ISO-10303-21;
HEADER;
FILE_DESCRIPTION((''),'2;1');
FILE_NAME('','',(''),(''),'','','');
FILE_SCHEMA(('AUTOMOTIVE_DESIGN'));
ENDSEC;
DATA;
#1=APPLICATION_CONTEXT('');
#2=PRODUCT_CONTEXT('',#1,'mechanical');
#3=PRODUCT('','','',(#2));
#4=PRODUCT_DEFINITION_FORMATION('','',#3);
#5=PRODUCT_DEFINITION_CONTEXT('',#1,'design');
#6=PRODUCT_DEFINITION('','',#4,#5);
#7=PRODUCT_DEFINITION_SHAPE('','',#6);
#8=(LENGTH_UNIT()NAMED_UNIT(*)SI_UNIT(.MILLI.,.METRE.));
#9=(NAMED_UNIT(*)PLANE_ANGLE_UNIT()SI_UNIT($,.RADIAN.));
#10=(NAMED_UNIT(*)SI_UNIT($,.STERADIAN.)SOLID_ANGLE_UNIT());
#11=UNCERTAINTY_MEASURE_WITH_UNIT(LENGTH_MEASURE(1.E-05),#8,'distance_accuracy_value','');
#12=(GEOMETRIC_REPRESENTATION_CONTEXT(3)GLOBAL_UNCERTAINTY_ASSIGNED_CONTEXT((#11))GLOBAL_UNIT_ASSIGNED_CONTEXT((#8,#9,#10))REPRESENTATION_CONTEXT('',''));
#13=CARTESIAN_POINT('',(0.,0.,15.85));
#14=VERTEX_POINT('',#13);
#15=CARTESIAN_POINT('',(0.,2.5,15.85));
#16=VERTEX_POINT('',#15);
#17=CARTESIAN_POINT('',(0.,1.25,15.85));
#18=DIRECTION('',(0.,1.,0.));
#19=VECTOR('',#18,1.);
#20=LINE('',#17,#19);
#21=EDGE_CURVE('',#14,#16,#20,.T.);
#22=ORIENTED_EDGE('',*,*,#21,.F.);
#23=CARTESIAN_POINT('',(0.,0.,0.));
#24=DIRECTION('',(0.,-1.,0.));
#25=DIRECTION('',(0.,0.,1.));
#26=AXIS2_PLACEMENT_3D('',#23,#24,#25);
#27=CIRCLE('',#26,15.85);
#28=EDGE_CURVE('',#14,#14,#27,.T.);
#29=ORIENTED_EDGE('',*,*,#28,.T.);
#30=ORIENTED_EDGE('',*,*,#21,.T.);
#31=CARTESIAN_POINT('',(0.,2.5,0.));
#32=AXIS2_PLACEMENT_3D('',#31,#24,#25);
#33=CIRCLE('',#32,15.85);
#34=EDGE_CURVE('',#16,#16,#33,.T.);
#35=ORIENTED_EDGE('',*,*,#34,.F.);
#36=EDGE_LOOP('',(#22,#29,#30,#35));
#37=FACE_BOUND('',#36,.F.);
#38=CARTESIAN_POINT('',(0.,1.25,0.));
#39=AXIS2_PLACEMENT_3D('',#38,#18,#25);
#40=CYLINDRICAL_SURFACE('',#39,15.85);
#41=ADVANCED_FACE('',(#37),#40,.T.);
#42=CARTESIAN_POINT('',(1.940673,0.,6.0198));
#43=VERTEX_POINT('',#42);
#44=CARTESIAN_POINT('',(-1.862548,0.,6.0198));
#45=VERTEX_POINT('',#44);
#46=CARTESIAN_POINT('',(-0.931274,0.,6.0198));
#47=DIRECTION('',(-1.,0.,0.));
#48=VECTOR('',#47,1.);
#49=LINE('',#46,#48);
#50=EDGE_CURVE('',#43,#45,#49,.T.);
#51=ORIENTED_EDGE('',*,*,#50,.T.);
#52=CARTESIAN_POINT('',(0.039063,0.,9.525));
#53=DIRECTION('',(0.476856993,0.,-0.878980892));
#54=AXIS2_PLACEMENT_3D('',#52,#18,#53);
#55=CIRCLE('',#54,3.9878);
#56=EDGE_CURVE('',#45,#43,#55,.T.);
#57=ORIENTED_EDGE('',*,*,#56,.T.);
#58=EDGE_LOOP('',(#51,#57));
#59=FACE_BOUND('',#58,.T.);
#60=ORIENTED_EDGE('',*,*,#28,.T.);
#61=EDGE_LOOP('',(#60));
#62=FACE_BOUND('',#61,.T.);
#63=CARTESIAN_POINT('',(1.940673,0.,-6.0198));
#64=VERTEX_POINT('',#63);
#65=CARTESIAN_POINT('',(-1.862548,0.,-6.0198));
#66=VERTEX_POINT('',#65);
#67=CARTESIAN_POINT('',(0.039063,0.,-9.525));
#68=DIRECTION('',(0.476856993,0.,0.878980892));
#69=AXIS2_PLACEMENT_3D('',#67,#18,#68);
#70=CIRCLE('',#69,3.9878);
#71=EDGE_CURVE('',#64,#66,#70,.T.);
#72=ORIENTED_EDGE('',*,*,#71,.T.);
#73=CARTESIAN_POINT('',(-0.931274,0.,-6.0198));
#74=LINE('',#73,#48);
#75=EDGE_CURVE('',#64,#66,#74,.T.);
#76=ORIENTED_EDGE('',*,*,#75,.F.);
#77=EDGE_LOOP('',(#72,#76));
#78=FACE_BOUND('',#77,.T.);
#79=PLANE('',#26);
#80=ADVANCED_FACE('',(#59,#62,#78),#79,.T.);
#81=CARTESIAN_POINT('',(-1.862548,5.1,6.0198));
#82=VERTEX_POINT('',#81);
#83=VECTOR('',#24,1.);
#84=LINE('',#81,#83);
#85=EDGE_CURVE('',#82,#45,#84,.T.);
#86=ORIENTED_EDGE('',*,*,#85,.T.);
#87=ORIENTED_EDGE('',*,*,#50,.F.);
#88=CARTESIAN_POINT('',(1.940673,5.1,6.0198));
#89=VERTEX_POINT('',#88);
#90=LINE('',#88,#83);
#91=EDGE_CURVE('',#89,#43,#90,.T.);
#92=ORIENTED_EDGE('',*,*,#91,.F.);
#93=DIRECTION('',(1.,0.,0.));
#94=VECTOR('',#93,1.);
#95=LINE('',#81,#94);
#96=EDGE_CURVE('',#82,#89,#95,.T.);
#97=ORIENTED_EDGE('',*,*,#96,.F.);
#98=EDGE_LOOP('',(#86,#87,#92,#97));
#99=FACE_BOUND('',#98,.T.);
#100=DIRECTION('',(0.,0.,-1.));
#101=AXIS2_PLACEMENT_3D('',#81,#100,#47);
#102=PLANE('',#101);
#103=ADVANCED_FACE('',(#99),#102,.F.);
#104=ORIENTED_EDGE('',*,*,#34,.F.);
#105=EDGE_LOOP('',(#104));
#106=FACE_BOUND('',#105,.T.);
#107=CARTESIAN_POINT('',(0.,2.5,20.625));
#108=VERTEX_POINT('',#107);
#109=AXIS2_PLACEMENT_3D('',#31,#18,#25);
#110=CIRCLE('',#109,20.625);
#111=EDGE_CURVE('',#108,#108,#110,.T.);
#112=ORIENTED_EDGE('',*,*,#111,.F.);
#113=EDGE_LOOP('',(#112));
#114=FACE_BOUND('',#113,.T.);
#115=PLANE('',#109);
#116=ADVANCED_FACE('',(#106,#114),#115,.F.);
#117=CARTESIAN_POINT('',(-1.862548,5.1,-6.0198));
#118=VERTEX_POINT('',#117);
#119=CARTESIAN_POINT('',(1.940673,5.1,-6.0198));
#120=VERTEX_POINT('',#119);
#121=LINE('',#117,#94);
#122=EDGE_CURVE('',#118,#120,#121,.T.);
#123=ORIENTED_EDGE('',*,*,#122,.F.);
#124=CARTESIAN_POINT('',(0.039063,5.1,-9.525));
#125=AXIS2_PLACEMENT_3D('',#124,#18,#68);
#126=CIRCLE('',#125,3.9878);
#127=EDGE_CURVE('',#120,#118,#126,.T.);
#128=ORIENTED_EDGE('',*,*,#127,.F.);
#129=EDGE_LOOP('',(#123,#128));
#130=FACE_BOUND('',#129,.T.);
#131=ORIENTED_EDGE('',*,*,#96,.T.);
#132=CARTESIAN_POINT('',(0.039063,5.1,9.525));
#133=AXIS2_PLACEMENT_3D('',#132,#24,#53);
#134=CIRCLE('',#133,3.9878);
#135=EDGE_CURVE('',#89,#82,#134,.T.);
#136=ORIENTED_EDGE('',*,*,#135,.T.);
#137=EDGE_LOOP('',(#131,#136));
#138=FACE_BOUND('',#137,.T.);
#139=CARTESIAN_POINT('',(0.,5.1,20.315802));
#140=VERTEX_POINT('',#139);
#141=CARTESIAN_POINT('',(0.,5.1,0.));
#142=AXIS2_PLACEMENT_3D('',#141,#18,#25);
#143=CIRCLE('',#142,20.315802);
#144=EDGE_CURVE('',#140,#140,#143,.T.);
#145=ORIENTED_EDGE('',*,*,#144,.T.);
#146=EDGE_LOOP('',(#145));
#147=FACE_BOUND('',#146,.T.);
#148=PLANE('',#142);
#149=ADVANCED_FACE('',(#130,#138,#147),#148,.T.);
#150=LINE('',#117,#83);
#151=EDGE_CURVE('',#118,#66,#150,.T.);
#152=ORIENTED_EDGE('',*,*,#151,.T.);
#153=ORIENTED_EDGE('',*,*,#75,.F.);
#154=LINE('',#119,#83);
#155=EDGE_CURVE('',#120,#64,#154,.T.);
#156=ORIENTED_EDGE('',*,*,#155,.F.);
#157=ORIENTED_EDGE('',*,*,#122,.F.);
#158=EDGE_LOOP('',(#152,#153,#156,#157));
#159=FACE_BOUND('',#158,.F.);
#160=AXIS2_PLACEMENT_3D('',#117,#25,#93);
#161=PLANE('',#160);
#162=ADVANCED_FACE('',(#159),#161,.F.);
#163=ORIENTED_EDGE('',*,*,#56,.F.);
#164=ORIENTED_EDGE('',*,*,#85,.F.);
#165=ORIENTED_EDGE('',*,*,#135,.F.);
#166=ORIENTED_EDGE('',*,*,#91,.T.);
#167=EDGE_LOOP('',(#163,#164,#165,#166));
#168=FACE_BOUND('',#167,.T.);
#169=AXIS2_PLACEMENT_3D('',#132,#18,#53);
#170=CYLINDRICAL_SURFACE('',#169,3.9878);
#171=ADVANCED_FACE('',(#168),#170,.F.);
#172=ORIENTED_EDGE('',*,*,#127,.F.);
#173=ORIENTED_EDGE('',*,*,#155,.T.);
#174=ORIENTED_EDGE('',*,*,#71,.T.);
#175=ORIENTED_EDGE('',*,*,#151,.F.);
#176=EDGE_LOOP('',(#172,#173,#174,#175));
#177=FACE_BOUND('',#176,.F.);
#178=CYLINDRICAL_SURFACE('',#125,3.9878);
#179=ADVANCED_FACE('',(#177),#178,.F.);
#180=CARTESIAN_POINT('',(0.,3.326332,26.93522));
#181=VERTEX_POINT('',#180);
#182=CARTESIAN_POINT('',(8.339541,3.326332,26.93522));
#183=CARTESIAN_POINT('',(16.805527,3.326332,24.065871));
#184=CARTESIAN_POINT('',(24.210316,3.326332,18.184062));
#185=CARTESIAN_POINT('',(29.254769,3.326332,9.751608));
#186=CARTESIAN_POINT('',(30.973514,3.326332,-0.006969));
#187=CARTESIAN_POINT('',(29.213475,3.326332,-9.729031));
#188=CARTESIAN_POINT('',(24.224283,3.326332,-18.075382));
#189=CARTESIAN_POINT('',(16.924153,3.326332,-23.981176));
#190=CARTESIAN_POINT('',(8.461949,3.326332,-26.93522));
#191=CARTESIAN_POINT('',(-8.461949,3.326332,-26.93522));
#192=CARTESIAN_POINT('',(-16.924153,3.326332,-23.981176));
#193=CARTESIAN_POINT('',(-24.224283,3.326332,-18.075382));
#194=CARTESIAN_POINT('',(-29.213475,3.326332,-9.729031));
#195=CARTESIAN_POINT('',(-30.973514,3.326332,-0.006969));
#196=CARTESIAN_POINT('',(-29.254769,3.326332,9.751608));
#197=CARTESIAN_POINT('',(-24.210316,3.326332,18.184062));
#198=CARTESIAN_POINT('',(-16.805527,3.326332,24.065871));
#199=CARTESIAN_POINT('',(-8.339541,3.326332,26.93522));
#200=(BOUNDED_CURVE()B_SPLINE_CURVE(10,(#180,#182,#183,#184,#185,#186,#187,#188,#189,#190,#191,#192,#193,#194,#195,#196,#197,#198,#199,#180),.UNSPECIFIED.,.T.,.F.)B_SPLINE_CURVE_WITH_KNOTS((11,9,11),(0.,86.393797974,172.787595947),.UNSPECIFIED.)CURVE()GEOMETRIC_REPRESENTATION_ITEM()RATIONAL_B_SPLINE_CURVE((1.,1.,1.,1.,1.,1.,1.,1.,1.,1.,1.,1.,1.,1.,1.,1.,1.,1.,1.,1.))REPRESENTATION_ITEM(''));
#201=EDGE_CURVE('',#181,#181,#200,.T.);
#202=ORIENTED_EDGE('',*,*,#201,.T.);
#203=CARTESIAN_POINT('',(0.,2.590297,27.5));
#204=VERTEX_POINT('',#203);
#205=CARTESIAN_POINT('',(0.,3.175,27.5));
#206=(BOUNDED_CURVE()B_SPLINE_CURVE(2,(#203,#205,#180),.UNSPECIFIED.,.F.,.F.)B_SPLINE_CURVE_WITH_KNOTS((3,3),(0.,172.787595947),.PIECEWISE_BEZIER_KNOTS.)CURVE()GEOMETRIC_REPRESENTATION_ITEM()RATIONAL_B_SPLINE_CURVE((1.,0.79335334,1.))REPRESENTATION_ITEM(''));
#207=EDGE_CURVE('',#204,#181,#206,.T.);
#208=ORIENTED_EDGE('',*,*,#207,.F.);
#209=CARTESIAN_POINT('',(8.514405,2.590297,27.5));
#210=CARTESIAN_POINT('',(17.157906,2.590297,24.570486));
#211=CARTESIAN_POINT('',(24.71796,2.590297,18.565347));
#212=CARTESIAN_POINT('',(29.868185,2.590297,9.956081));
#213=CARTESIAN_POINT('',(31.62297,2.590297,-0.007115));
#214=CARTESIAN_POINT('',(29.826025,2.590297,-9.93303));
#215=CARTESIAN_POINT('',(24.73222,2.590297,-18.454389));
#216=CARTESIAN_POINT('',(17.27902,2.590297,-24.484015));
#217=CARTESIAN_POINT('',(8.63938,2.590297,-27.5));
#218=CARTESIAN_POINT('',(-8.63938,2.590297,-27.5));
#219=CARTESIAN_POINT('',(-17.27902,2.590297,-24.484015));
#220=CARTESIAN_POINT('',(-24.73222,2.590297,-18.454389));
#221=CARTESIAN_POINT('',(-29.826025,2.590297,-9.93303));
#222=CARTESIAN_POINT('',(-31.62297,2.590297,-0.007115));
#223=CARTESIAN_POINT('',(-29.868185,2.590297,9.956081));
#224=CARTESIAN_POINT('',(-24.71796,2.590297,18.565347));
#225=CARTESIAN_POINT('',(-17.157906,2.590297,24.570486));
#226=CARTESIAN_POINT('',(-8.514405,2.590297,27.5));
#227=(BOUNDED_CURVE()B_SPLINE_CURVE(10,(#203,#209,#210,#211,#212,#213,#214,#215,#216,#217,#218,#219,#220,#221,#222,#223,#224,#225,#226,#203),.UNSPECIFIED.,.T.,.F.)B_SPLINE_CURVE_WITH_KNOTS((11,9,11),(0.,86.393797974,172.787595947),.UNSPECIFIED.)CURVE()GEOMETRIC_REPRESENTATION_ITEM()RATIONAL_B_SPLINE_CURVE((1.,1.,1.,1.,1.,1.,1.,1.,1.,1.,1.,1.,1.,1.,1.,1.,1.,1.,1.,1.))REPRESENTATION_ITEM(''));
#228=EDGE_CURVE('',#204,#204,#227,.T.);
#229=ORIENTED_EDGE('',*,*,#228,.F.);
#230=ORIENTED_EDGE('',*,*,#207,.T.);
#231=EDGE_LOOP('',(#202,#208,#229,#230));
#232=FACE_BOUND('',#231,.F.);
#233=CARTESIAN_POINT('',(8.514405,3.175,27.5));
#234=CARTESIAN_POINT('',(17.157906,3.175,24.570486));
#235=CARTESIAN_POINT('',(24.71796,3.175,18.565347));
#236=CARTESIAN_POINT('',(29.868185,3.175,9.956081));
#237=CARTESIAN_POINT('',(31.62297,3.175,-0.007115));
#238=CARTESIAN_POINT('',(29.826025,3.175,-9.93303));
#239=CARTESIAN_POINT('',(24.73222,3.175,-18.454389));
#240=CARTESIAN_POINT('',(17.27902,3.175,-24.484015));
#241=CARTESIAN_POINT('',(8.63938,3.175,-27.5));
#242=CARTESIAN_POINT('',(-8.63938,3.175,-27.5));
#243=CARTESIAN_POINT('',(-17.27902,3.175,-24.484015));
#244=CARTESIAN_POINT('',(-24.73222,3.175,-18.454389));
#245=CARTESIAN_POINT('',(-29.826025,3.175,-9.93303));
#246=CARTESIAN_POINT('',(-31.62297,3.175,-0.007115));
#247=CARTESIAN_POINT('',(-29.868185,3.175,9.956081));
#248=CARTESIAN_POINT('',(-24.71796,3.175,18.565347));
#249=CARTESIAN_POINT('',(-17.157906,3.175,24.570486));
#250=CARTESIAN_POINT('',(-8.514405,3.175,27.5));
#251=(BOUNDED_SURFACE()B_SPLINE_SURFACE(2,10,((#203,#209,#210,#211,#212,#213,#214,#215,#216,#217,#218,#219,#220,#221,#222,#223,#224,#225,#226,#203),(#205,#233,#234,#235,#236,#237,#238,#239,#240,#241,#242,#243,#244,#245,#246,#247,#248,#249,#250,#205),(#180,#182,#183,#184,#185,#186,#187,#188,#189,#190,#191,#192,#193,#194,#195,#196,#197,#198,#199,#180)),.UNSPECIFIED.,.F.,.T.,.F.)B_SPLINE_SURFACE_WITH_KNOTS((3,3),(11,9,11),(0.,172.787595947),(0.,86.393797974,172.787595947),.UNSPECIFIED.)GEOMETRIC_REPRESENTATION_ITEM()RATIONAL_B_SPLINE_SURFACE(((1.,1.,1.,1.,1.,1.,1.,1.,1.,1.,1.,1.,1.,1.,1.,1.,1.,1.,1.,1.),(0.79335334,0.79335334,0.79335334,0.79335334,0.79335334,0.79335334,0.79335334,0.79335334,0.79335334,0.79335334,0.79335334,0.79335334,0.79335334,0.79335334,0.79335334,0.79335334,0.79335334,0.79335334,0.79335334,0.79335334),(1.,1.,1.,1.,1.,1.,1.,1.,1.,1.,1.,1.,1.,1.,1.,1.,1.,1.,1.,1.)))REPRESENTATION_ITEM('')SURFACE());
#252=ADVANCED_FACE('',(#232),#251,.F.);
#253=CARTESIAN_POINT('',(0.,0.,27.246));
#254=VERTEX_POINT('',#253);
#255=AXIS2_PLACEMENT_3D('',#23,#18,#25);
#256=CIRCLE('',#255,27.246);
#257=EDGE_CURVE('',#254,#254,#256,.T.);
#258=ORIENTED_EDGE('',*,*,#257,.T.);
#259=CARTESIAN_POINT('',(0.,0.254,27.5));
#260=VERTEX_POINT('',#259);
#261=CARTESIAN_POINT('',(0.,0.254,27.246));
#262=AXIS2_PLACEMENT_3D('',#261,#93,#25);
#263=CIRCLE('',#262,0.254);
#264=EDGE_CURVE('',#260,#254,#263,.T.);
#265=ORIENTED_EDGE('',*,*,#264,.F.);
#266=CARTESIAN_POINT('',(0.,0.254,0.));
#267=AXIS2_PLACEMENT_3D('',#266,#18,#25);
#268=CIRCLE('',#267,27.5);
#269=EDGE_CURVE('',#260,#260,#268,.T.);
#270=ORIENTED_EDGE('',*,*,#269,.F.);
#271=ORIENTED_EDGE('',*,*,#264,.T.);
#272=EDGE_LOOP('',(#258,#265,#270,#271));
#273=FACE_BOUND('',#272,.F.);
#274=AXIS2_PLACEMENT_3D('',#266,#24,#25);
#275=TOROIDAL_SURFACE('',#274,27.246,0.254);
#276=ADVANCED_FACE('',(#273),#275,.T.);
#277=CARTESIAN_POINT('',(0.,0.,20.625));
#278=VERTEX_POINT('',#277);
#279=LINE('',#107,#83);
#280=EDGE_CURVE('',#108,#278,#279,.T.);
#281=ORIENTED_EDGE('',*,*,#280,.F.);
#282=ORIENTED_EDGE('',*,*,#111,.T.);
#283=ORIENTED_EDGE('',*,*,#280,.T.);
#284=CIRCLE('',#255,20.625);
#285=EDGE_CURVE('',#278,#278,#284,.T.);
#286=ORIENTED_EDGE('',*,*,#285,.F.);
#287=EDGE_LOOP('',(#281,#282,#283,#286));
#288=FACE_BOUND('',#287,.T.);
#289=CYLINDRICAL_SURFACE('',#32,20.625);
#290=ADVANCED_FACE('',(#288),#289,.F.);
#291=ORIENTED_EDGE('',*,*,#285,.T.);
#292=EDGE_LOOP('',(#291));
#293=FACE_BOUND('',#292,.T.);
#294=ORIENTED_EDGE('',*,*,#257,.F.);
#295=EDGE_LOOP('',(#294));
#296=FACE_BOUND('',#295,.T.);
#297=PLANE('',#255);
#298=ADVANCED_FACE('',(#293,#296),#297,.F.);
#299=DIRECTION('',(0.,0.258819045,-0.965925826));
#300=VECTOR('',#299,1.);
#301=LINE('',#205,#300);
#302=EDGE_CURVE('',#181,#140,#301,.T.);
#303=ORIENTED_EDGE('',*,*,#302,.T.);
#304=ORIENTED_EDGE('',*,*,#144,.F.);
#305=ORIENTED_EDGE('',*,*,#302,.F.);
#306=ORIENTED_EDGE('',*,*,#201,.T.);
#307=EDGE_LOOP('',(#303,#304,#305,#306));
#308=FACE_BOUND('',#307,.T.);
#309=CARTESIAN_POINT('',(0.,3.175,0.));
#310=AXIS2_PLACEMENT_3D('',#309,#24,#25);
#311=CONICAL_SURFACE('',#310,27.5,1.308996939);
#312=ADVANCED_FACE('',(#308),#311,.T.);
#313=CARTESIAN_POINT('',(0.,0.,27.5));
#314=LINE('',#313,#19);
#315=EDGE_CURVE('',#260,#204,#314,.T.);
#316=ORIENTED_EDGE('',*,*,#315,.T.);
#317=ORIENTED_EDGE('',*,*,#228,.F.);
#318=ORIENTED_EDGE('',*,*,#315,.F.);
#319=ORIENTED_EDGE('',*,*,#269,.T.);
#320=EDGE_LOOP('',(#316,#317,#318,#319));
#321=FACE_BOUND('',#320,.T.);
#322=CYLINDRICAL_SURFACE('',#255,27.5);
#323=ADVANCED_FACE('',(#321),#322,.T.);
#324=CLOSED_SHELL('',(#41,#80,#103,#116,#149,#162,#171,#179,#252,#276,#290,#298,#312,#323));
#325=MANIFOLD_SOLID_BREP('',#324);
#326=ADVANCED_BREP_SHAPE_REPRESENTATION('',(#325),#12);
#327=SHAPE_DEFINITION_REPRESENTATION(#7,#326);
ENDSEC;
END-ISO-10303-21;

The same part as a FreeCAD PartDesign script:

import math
import FreeCAD as App
import Part
import Sketcher

V = App.Vector
Q = App.Units.Quantity


def edges_at(feature, points):
    """Names of the edges that pass closest to the given points."""
    edges = feature.Shape.Edges
    near = lambda p: min(range(len(edges)), key=lambda i: edges[i].distToShape(Part.Vertex(*p))[0])
    return sorted({f"Edge{near(p) + 1}" for p in points})


def add_polygon(sketch, points):
    """Adds a closed chain of lines whose ends are joined by coincident constraints."""
    first, n = sketch.GeometryCount, len(points)
    for a, b in zip(points, points[1:] + points[:1]):
        sketch.addGeometry(Part.LineSegment(App.Vector(*a, 0), App.Vector(*b, 0)), False)
    for i in range(n):
        sketch.addConstraint(Sketcher.Constraint("Coincident", first + i, 2, first + (i + 1) % n, 1))

doc = App.newDocument("Part")
body = doc.addObject("PartDesign::Body", "Body")

# Sketch on YZ plane
sketch1 = doc.addObject("Sketcher::SketchObject", "Sketch")
body.addObject(sketch1)
sketch1.AttachmentSupport = (doc.YZ_Plane, [""])
sketch1.MapMode = "FlatFace"
add_polygon(sketch1, [(3.2, 27.5), (0, 27.5), (0, 20.6), (2.5, 20.6), (2.5, 0), (5.1, 0), (5.1, 20.3)])  # lines 0-6
sketch1.addConstraint([
    Sketcher.Constraint("Horizontal", 0),
    Sketcher.Constraint("Vertical", 1),
    Sketcher.Constraint("Horizontal", 2),
    Sketcher.Constraint("Vertical", 3),
    Sketcher.Constraint("Horizontal", 4),
    Sketcher.Constraint("Vertical", 5),
    Sketcher.Constraint("PointOnObject", 0, 2, -2),
    Sketcher.Constraint("PointOnObject", 3, 2, -1),
    Sketcher.Constraint("Angle", 6, Q("105 deg")),
    Sketcher.Constraint("DistanceX", 0, 2, 0, 1, Q("0.125 in")),
    Sketcher.Constraint("DistanceX", 2, 1, 2, 2, Q("2.5 mm")),
    Sketcher.Constraint("DistanceX", 4, 1, 4, 2, Q("2.6 mm")),
    Sketcher.Constraint("DistanceY", 1, 2, 1, 1, Q("6.875 mm")),
    Sketcher.Constraint("DistanceY", 3, 2, 3, 1, Q("20.625 mm")),
])
revolution = doc.addObject("PartDesign::Revolution", "Revolution")
body.addObject(revolution)
revolution.Profile = sketch1
revolution.ReferenceAxis = (sketch1, ["H_Axis"])
revolution.Angle = 360

# Sketch on YZ plane
sketch2 = doc.addObject("Sketcher::SketchObject", "Sketch001")
body.addObject(sketch2)
sketch2.AttachmentSupport = (doc.YZ_Plane, [""])
sketch2.MapMode = "FlatFace"
add_polygon(sketch2, [(2.5, 15.8), (0, 15.8), (0, 0), (2.5, 0)])  # lines 0-3
sketch2.addConstraint([
    Sketcher.Constraint("Horizontal", 0),
    Sketcher.Constraint("Vertical", 1),
    Sketcher.Constraint("Horizontal", 2),
    Sketcher.Constraint("Vertical", 3),
    Sketcher.Constraint("Coincident", 1, 2, -1, 1),
    Sketcher.Constraint("DistanceX", 0, 2, 0, 1, Q("2.5 mm")),
    Sketcher.Constraint("DistanceY", 1, 2, 1, 1, Q("15.85 mm")),
])
revolution2 = doc.addObject("PartDesign::Revolution", "Revolution001")
body.addObject(revolution2)
revolution2.Profile = sketch2
revolution2.ReferenceAxis = (sketch2, ["H_Axis"])
revolution2.Angle = 360
doc.recompute()

fillet = doc.addObject("PartDesign::Fillet", "Fillet")
body.addObject(fillet)
fillet.Base = (revolution2, edges_at(revolution2, [(0, 3.175, -27.5)]))
fillet.Radius = Q("0.03 in")
doc.recompute()

fillet2 = doc.addObject("PartDesign::Fillet", "Fillet001")
body.addObject(fillet2)
fillet2.Base = (fillet, edges_at(fillet, [(0, 0, -27.5)]))
fillet2.Radius = Q("0.01 in")

# Sketch on XZ plane
sketch3 = doc.addObject("Sketcher::SketchObject", "Sketch002")
body.addObject(sketch3)
sketch3.AttachmentSupport = (doc.XZ_Plane, [""])
sketch3.MapMode = "FlatFace"
sketch3.AttachmentOffset = App.Placement(V(0, 0, -5.1), App.Rotation())
sketch3.addGeometry([
    Part.LineSegment(V(-1.9, -6, 0), V(1.9, -6, 0)),
    Part.ArcOfCircle(Part.Circle(V(0, -9.5, 0), V(0, 0, 1), 4), math.radians(118), math.radians(422)),
], False)
sketch3.addConstraint([
    Sketcher.Constraint("Coincident", 0, 1, 1, 1),
    Sketcher.Constraint("Coincident", 1, 2, 0, 2),
    Sketcher.Constraint("Horizontal", 0),
    Sketcher.Constraint("Radius", 1, Q("0.157 in")),
    Sketcher.Constraint("DistanceY", 1, 3, -1, 1, Q("0.375 in")),
    Sketcher.Constraint("DistanceY", 0, 1, -1, 1, Q("0.237 in")),
    Sketcher.Constraint("DistanceX", -1, 1, 1, 3, Q("0.039063 mm")),
])
pocket1 = doc.addObject("PartDesign::Pocket", "Pocket")
body.addObject(pocket1)
pocket1.Profile = sketch3
pocket1.Type = "ThroughAll"
pocket1.Reversed = True
doc.recompute()

mirrored = doc.addObject("PartDesign::Mirrored", "Mirrored")
body.addObject(mirrored)
mirrored.Originals = [pocket1]
mirrored.MirrorPlane = (doc.XY_Plane, [""])
body.Tip = mirrored

doc.recompute()
